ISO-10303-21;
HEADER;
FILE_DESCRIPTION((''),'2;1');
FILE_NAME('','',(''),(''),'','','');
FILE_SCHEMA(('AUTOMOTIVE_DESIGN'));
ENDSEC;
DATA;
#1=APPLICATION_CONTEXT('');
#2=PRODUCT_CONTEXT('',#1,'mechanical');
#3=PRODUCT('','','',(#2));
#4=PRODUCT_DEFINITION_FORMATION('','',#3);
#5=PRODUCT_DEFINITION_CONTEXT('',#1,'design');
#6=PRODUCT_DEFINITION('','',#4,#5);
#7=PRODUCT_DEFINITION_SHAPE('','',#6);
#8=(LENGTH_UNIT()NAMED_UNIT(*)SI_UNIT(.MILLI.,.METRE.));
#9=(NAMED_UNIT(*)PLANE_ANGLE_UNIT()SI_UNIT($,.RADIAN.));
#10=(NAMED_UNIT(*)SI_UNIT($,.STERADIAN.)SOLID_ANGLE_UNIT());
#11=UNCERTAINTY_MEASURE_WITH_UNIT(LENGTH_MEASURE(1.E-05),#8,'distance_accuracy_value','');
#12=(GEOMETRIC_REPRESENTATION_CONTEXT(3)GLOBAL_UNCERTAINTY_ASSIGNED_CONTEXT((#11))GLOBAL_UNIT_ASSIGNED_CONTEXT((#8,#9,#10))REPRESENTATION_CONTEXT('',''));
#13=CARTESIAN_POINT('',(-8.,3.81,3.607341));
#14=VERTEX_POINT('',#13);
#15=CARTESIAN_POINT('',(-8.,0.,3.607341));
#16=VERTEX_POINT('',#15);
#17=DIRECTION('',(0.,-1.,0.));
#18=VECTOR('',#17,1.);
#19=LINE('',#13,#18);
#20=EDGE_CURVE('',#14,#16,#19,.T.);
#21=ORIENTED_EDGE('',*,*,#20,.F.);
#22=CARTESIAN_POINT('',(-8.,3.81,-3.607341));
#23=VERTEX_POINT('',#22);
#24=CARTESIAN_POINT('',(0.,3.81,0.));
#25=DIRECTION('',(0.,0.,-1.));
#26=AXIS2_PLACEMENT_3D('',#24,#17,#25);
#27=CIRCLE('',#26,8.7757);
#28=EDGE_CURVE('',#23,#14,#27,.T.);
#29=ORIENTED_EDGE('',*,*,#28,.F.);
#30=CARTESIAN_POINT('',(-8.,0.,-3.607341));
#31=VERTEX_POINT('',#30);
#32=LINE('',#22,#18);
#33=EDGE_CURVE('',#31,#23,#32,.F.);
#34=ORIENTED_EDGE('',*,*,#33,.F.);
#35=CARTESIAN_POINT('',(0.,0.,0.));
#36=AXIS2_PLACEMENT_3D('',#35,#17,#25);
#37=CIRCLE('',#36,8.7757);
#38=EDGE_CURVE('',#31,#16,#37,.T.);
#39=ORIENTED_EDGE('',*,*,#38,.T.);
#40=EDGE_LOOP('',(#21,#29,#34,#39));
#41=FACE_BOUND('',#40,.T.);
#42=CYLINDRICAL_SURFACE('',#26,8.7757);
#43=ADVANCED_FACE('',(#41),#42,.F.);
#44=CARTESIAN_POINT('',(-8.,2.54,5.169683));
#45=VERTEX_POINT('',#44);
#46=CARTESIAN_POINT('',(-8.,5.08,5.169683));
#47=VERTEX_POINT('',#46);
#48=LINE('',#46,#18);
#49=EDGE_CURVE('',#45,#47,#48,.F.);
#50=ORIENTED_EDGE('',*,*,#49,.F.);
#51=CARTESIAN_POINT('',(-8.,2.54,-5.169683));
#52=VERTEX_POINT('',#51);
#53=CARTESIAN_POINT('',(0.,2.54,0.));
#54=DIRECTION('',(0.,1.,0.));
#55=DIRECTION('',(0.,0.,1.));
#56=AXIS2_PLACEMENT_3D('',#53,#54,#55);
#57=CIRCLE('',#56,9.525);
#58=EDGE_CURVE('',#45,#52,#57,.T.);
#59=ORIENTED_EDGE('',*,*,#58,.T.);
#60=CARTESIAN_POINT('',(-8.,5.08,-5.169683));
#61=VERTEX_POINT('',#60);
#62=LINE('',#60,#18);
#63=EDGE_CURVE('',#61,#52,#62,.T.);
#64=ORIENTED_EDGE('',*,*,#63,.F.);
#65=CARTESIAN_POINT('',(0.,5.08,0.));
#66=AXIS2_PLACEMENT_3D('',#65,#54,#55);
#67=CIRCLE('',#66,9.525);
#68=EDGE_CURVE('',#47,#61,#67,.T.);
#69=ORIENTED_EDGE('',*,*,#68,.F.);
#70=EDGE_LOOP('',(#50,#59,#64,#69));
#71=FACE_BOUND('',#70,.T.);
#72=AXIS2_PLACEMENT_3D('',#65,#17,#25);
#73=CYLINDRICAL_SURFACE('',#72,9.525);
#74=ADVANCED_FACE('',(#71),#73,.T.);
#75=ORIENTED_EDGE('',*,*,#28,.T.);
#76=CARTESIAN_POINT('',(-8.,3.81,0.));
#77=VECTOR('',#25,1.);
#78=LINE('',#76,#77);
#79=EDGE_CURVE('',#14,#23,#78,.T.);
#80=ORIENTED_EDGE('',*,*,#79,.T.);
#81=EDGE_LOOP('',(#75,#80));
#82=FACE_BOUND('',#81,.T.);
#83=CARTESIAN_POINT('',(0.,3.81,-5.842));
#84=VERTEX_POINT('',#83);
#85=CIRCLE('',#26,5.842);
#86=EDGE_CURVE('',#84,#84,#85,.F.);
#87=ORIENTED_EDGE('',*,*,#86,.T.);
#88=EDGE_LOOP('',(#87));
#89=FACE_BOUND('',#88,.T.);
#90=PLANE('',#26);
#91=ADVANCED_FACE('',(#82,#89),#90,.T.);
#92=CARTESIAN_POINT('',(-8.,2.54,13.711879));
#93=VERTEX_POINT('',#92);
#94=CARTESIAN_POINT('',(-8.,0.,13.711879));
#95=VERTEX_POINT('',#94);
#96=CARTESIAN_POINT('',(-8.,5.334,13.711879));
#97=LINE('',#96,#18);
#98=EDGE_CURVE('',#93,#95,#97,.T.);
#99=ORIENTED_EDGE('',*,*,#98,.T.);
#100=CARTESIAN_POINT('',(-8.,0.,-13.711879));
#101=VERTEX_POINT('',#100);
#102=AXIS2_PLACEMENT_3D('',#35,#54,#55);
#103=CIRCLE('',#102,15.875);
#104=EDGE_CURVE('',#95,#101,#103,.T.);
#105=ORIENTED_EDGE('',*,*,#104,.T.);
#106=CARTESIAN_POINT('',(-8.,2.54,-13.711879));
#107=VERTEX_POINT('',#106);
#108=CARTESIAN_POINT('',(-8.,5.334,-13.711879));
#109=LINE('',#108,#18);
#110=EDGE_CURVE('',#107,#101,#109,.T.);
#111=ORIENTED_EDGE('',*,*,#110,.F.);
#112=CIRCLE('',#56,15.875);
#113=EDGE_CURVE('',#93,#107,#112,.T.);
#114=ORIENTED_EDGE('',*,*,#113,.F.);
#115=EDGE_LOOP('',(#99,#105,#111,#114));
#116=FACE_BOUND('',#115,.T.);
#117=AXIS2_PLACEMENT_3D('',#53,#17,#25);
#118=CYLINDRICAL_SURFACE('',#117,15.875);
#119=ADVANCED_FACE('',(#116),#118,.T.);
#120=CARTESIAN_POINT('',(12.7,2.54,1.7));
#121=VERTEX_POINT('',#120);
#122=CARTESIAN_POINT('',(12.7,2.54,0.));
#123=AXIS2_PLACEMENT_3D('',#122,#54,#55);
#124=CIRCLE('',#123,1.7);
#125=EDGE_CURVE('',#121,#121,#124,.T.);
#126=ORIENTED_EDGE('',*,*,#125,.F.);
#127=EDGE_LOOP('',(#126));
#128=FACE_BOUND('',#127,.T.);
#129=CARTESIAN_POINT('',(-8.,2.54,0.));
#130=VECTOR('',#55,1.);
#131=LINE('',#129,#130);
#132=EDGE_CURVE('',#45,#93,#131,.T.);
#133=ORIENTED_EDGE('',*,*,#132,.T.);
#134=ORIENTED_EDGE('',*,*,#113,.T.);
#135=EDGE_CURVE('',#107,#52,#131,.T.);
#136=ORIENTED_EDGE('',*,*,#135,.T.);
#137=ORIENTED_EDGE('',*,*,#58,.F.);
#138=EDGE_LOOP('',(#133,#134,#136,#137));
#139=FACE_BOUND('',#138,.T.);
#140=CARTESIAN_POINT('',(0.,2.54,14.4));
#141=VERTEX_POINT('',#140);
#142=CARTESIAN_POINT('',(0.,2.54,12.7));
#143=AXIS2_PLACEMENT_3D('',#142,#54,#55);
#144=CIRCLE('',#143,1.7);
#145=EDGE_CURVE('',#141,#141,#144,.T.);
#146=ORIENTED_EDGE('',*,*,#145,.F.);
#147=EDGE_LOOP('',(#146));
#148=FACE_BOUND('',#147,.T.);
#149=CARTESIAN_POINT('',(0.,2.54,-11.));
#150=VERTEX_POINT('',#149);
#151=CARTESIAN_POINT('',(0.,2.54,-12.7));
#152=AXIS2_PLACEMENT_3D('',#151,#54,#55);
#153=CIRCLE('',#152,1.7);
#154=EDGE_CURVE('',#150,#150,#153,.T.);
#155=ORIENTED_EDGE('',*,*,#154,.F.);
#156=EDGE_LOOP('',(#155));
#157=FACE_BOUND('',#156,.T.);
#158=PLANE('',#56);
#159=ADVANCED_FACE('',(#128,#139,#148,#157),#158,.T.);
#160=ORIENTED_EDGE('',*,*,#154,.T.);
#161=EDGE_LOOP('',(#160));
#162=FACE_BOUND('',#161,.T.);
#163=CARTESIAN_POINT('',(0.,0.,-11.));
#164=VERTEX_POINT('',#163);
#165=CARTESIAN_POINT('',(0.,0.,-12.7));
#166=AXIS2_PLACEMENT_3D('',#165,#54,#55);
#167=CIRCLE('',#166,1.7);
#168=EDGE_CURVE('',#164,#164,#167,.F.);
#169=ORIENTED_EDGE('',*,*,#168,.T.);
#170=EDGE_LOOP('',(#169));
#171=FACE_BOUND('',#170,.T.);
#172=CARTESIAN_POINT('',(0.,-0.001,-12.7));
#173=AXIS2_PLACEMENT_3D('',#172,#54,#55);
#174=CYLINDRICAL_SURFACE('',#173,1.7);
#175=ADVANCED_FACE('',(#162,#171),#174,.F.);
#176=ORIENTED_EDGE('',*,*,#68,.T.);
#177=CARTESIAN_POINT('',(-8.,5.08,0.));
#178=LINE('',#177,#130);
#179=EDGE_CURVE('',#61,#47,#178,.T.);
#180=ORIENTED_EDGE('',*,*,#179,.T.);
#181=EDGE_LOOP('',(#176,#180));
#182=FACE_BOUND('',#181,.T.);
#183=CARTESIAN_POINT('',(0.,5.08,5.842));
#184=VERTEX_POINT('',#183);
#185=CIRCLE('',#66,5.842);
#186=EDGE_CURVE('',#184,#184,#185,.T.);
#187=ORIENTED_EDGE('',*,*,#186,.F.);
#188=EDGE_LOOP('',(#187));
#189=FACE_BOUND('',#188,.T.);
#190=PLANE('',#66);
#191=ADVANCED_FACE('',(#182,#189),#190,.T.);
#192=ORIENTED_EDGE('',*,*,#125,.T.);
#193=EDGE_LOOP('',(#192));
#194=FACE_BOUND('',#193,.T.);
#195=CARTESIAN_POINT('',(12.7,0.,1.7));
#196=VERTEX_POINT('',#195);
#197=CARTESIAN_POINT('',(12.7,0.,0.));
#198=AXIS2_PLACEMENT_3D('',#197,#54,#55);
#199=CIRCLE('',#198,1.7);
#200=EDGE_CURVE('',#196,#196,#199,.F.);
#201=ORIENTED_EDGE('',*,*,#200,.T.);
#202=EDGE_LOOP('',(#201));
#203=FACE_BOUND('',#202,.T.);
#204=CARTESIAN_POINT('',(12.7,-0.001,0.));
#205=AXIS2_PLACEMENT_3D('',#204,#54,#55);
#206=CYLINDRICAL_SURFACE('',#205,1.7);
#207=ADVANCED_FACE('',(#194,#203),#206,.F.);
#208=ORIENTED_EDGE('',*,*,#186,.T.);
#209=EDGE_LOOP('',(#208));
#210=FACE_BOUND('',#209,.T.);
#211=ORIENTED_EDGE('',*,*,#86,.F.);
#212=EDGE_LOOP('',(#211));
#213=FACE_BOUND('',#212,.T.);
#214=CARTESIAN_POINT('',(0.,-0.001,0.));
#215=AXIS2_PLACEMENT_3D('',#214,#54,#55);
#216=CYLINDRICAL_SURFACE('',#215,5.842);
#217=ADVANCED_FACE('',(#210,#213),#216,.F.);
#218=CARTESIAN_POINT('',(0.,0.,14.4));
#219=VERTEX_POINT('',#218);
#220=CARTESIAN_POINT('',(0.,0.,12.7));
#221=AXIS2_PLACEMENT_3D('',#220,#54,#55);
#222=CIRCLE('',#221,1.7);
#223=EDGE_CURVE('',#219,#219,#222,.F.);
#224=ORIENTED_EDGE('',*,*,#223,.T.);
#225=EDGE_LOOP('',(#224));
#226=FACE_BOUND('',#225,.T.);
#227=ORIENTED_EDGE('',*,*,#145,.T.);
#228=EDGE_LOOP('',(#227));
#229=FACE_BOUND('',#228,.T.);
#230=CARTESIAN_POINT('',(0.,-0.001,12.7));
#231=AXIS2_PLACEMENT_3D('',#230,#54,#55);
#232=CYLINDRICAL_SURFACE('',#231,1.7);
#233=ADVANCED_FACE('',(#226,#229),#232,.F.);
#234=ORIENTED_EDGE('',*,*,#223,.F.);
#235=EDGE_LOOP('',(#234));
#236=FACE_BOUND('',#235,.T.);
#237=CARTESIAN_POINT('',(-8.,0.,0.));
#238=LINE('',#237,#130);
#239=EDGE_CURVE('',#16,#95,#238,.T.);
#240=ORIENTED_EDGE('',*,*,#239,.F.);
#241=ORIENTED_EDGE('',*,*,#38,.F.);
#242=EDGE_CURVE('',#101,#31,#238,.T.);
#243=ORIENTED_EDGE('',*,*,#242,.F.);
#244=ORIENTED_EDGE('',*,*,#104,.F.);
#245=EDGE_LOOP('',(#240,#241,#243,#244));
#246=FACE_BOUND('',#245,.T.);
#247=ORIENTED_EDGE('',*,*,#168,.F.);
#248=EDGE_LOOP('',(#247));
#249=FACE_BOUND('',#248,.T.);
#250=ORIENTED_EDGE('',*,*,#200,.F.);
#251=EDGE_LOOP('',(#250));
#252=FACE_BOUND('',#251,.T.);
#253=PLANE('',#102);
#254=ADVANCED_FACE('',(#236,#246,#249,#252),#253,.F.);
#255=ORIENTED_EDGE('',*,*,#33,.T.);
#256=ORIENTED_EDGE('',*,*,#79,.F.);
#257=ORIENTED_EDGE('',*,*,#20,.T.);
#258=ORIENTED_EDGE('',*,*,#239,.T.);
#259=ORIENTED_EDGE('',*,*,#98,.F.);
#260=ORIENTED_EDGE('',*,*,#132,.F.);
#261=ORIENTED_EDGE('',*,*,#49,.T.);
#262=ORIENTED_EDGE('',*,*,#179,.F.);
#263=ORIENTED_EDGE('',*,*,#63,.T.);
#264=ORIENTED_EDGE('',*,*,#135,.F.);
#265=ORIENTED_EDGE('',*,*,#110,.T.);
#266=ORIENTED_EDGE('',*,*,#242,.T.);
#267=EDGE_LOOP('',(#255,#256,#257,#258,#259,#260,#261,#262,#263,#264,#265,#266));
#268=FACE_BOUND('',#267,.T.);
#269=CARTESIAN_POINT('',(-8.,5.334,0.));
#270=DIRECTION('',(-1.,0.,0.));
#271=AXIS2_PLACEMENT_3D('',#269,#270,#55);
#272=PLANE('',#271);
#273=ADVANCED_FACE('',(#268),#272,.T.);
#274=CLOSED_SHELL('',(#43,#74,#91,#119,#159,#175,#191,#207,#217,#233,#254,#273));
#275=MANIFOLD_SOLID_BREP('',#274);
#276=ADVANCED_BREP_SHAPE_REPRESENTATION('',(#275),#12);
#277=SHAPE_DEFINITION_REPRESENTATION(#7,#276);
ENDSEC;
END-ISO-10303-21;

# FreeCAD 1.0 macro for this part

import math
import FreeCAD as App
import Part
import Sketcher
Q = App.Units.Quantity

doc = App.newDocument("Part")
params = doc.addObject("Spreadsheet::Sheet", "Params")
for row, (alias, value) in enumerate([
    ("sketch1_diameter", "1.25 in"),
    ("pad1_length", "0.1 in"),
    ("sketch2_diameter", "0.75 in"),
    ("pad2_length", "0.1 in"),
    ("sketch3_diameter", "0.691 in"),
    ("pocket1_length", "0.15 in"),
    ("sketch4_diameter", "0.46 in"),
    ("sketch9_radius", "0.625 in"),
    ("pocket7_length", "0.1 in"),
    ("sketch10_radius", "0.625 in"),
    ("pocket8_length", "0.11 in"),
], start=1):
    params.set(f"A{row}", alias)
    params.set(f"B{row}", "=" + value)
    params.setAlias(f"B{row}", alias)

body = doc.addObject("PartDesign::Body", "Body")

# Sketch on XZ plane
sketch1 = doc.addObject("Sketcher::SketchObject", "Sketch")
body.addObject(sketch1)
sketch1.AttachmentSupport = (doc.XZ_Plane, [""])
sketch1.MapMode = "FlatFace"
sketch1.addGeometry(Part.Circle(App.Vector(0, 0, 0), App.Vector(0, 0, 1), 16), False)
sketch1.addConstraint(Sketcher.Constraint("Coincident", 0, 3, -1, 1))
sketch1.addConstraint(Sketcher.Constraint("Diameter", 0, Q("1.25 in")))
sketch1.setExpression("Constraints[1]", "Params.sketch1_diameter")
pad1 = doc.addObject("PartDesign::Pad", "Pad")
body.addObject(pad1)
pad1.Profile = sketch1
pad1.setExpression("Length", "Params.pad1_length")
pad1.Reversed = True

# Sketch on XZ plane
sketch2 = doc.addObject("Sketcher::SketchObject", "Sketch001")
body.addObject(sketch2)
sketch2.AttachmentSupport = (doc.XZ_Plane, [""])
sketch2.MapMode = "FlatFace"
sketch2.AttachmentOffset = App.Placement(App.Vector(0, 0, -0.1 * 25.4), App.Rotation())
sketch2.addGeometry(Part.Circle(App.Vector(0, 0, 0), App.Vector(0, 0, 1), 10), False)
sketch2.addConstraint(Sketcher.Constraint("Coincident", 0, 3, -1, 1))
sketch2.addConstraint(Sketcher.Constraint("Diameter", 0, Q("0.75 in")))
sketch2.setExpression("Constraints[1]", "Params.sketch2_diameter")
pad2 = doc.addObject("PartDesign::Pad", "Pad001")
body.addObject(pad2)
pad2.Profile = sketch2
pad2.setExpression("Length", "Params.pad2_length")
pad2.Reversed = True

# Sketch on XZ plane
sketch3 = doc.addObject("Sketcher::SketchObject", "Sketch002")
body.addObject(sketch3)
sketch3.AttachmentSupport = (doc.XZ_Plane, [""])
sketch3.MapMode = "FlatFace"
sketch3.addGeometry(Part.Circle(App.Vector(0, 0, 0), App.Vector(0, 0, 1), 9), False)
sketch3.addConstraint(Sketcher.Constraint("Coincident", 0, 3, -1, 1))
sketch3.addConstraint(Sketcher.Constraint("Diameter", 0, Q("0.691 in")))
sketch3.setExpression("Constraints[1]", "Params.sketch3_diameter")
pocket1 = doc.addObject("PartDesign::Pocket", "Pocket")
body.addObject(pocket1)
pocket1.Profile = sketch3
pocket1.setExpression("Length", "Params.pocket1_length")

# Sketch on XZ plane
sketch4 = doc.addObject("Sketcher::SketchObject", "Sketch003")
body.addObject(sketch4)
sketch4.AttachmentSupport = (doc.XZ_Plane, [""])
sketch4.MapMode = "FlatFace"
sketch4.AttachmentOffset = App.Placement(App.Vector(0, 0, -0.2 * 25.4), App.Rotation())
sketch4.addGeometry(Part.Circle(App.Vector(0, 0, 0), App.Vector(0, 0, 1), 6), False)
sketch4.addConstraint(Sketcher.Constraint("Coincident", 0, 3, -1, 1))
sketch4.addConstraint(Sketcher.Constraint("Diameter", 0, Q("0.46 in")))
sketch4.setExpression("Constraints[1]", "Params.sketch4_diameter")
pocket2 = doc.addObject("PartDesign::Pocket", "Pocket001")
body.addObject(pocket2)
pocket2.Profile = sketch4
pocket2.Type = "UpToFirst"
pocket2.Reversed = True

# Sketch on XZ plane
sketch5 = doc.addObject("Sketcher::SketchObject", "Sketch004")
body.addObject(sketch5)
sketch5.AttachmentSupport = (doc.XZ_Plane, [""])
sketch5.MapMode = "FlatFace"
sketch5.AttachmentOffset = App.Placement(App.Vector(0, 0, -0.1 * 25.4), App.Rotation())
sketch5.addGeometry(Part.Circle(App.Vector(0, -12.7, 0), App.Vector(0, 0, 1), 1.7), False)
sketch5.addConstraint(Sketcher.Constraint("PointOnObject", 0, 3, -2))
sketch5.addConstraint(Sketcher.Constraint("DistanceY", 0, 3, -1, 1, Q("0.5 in")))
sketch5.addConstraint(Sketcher.Constraint("Diameter", 0, Q("3.4 mm")))
pocket3 = doc.addObject("PartDesign::Pocket", "Pocket002")
body.addObject(pocket3)
pocket3.Profile = sketch5
pocket3.Type = "UpToFirst"
pocket3.Reversed = True

# Sketch on XZ plane
sketch6 = doc.addObject("Sketcher::SketchObject", "Sketch005")
body.addObject(sketch6)
sketch6.AttachmentSupport = (doc.XZ_Plane, [""])
sketch6.MapMode = "FlatFace"
sketch6.AttachmentOffset = App.Placement(App.Vector(0, 0, -0.1 * 25.4), App.Rotation())
sketch6.addGeometry(Part.Circle(App.Vector(12.7, 0, 0), App.Vector(0, 0, 1), 1.7), False)
sketch6.addConstraint(Sketcher.Constraint("PointOnObject", 0, 3, -1))
sketch6.addConstraint(Sketcher.Constraint("DistanceX", -1, 1, 0, 3, Q("0.5 in")))
sketch6.addConstraint(Sketcher.Constraint("Diameter", 0, Q("3.4 mm")))
pocket4 = doc.addObject("PartDesign::Pocket", "Pocket003")
body.addObject(pocket4)
pocket4.Profile = sketch6
pocket4.Type = "UpToFirst"
pocket4.Reversed = True

# Sketch on XZ plane
sketch7 = doc.addObject("Sketcher::SketchObject", "Sketch006")
body.addObject(sketch7)
sketch7.AttachmentSupport = (doc.XZ_Plane, [""])
sketch7.MapMode = "FlatFace"
sketch7.AttachmentOffset = App.Placement(App.Vector(0, 0, -0.1 * 25.4), App.Rotation())
sketch7.addGeometry(Part.Circle(App.Vector(0, 12.7, 0), App.Vector(0, 0, 1), 1.7), False)
sketch7.addConstraint(Sketcher.Constraint("PointOnObject", 0, 3, -2))
sketch7.addConstraint(Sketcher.Constraint("DistanceY", -1, 1, 0, 3, Q("0.5 in")))
sketch7.addConstraint(Sketcher.Constraint("Diameter", 0, Q("3.4 mm")))
pocket5 = doc.addObject("PartDesign::Pocket", "Pocket004")
body.addObject(pocket5)
pocket5.Profile = sketch7
pocket5.Type = "UpToFirst"
pocket5.Reversed = True

# Sketch on XZ plane
sketch8 = doc.addObject("Sketcher::SketchObject", "Sketch007")
body.addObject(sketch8)
sketch8.AttachmentSupport = (doc.XZ_Plane, [""])
sketch8.MapMode = "FlatFace"
sketch8.AttachmentOffset = App.Placement(App.Vector(0, 0, -0.1 * 25.4), App.Rotation())
sketch8.addGeometry(Part.Circle(App.Vector(-12.7, 0, 0), App.Vector(0, 0, 1), 1.7), False)
sketch8.addConstraint(Sketcher.Constraint("PointOnObject", 0, 3, -1))
sketch8.addConstraint(Sketcher.Constraint("DistanceX", 0, 3, -1, 1, Q("0.5 in")))
sketch8.addConstraint(Sketcher.Constraint("Diameter", 0, Q("3.4 mm")))
pocket6 = doc.addObject("PartDesign::Pocket", "Pocket005")
body.addObject(pocket6)
pocket6.Profile = sketch8
pocket6.Type = "UpToFirst"
pocket6.Reversed = True

# Sketch on XZ plane
sketch9 = doc.addObject("Sketcher::SketchObject", "Sketch008")
body.addObject(sketch9)
sketch9.AttachmentSupport = (doc.XZ_Plane, [""])
sketch9.MapMode = "FlatFace"
sketch9.AttachmentOffset = App.Placement(App.Vector(0, 0, -0.1 * 25.4), App.Rotation())
sketch9.addGeometry(Part.LineSegment(App.Vector(-8, 14, 0), App.Vector(-8, -14, 0)), False)
sketch9.addGeometry(Part.ArcOfCircle(Part.Circle(App.Vector(0, 0, 0), App.Vector(0, 0, 1), 16), math.radians(120), math.radians(240)), False)
sketch9.addConstraint(Sketcher.Constraint("Coincident", 0, 1, 1, 1))
sketch9.addConstraint(Sketcher.Constraint("Coincident", 1, 2, 0, 2))
sketch9.addConstraint(Sketcher.Constraint("Vertical", 0))
sketch9.addConstraint(Sketcher.Constraint("Coincident", 1, 3, -1, 1))
sketch9.addConstraint(Sketcher.Constraint("Radius", 1, Q("0.625 in")))
sketch9.addConstraint(Sketcher.Constraint("DistanceX", 0, 1, -1, 1, Q("8 mm")))
sketch9.setExpression("Constraints[4]", "Params.sketch9_radius")
pocket7 = doc.addObject("PartDesign::Pocket", "Pocket006")
body.addObject(pocket7)
pocket7.Profile = sketch9
pocket7.setExpression("Length", "Params.pocket7_length")
pocket7.Reversed = True

# Sketch on XZ plane
sketch10 = doc.addObject("Sketcher::SketchObject", "Sketch009")
body.addObject(sketch10)
sketch10.AttachmentSupport = (doc.XZ_Plane, [""])
sketch10.MapMode = "FlatFace"
sketch10.AttachmentOffset = App.Placement(App.Vector(0, 0, -0.1 * 25.4), App.Rotation())
sketch10.addGeometry(Part.LineSegment(App.Vector(-8, 14, 0), App.Vector(-8, -14, 0)), False)
sketch10.addGeometry(Part.ArcOfCircle(Part.Circle(App.Vector(0, 0, 0), App.Vector(0, 0, 1), 16), math.radians(120), math.radians(240)), False)
sketch10.addConstraint(Sketcher.Constraint("Coincident", 0, 1, 1, 1))
sketch10.addConstraint(Sketcher.Constraint("Coincident", 1, 2, 0, 2))
sketch10.addConstraint(Sketcher.Constraint("Vertical", 0))
sketch10.addConstraint(Sketcher.Constraint("Coincident", 1, 3, -1, 1))
sketch10.addConstraint(Sketcher.Constraint("Radius", 1, Q("0.625 in")))
sketch10.addConstraint(Sketcher.Constraint("DistanceX", 0, 1, -1, 1, Q("8 mm")))
sketch10.setExpression("Constraints[4]", "Params.sketch10_radius")
pocket8 = doc.addObject("PartDesign::Pocket", "Pocket007")
body.addObject(pocket8)
pocket8.Profile = sketch10
pocket8.setExpression("Length", "Params.pocket8_length")

doc.recompute()
